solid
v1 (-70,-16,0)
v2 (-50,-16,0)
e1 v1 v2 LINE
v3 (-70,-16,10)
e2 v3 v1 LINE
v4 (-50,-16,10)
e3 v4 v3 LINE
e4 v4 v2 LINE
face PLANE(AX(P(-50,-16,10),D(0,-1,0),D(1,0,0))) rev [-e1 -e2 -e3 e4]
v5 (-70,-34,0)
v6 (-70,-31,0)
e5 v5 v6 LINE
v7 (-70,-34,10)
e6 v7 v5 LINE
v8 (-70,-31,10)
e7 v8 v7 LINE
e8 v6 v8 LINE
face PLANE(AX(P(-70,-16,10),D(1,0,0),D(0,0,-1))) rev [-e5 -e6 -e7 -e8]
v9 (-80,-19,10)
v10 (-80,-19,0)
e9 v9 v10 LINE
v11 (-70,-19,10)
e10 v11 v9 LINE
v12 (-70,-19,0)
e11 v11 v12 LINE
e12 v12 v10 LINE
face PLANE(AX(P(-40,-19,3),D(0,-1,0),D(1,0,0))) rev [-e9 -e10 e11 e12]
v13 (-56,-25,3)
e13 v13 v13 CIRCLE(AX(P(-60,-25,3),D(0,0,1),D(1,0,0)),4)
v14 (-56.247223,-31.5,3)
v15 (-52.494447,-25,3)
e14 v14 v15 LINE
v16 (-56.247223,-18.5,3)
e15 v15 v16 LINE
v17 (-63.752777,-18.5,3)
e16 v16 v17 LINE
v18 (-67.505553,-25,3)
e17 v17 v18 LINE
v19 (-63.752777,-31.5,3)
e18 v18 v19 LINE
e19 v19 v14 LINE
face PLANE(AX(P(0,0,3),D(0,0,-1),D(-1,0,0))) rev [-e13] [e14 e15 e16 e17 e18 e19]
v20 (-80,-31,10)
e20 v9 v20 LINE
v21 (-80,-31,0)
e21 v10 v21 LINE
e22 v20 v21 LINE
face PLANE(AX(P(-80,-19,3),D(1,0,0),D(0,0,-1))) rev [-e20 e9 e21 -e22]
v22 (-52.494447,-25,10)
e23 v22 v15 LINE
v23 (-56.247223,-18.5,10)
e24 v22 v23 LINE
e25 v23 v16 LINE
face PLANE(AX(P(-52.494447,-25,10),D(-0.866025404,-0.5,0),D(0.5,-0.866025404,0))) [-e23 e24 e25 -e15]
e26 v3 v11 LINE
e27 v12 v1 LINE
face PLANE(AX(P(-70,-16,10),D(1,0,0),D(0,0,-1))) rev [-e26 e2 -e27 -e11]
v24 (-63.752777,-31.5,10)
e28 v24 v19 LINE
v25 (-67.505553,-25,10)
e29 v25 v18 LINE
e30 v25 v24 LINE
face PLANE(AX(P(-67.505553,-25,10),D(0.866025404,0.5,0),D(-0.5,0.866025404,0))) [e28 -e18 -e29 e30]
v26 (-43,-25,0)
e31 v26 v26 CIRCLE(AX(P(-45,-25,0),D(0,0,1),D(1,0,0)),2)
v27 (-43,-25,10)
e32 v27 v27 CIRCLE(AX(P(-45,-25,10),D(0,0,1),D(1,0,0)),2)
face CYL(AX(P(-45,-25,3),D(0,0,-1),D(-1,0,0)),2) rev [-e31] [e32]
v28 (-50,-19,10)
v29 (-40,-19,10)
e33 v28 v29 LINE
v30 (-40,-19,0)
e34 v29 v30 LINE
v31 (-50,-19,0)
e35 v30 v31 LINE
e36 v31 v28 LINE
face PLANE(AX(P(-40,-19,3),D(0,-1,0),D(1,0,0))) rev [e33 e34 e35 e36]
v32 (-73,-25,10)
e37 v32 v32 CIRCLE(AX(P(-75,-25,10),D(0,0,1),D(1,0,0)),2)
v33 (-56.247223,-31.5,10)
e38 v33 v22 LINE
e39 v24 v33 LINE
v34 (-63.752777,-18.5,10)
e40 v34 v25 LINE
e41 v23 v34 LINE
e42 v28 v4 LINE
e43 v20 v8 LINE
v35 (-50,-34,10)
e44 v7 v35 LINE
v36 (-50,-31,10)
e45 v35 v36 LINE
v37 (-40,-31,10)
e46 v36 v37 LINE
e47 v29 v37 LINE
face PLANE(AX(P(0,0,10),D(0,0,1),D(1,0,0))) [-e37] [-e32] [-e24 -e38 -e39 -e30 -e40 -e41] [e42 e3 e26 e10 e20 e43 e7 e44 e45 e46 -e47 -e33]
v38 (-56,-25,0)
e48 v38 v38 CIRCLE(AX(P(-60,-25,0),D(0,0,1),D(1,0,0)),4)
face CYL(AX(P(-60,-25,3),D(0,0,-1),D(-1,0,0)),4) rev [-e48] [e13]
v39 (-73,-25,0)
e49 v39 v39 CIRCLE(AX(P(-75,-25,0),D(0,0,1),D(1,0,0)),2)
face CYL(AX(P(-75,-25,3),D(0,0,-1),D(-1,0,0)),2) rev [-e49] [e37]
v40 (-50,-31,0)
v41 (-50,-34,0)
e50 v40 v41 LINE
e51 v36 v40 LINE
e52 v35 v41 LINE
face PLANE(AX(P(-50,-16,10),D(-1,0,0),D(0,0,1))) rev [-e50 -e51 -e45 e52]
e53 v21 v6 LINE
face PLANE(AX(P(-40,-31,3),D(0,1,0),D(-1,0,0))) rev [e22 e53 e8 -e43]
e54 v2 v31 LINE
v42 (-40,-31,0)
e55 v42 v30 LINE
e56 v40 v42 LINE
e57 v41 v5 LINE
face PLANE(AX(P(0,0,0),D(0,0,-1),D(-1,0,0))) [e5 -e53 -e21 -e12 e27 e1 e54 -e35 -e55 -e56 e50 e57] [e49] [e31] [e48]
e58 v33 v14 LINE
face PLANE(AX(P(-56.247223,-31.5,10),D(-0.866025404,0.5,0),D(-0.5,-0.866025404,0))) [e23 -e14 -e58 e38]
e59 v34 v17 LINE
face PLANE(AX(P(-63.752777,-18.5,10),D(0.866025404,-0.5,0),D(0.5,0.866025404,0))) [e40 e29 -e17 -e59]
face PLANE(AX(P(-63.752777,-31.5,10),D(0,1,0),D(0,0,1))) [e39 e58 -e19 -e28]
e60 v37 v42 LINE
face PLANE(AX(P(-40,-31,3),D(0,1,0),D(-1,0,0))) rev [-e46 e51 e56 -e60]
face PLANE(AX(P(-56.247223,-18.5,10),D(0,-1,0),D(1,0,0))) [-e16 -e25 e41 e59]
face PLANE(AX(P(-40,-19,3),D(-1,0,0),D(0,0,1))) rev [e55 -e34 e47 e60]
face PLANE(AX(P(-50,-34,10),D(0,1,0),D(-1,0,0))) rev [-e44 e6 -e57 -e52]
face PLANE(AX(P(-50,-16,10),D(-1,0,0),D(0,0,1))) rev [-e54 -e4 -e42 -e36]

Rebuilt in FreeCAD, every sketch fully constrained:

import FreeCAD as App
import Part
import Sketcher

V = App.Vector
Q = App.Units.Quantity

doc = App.newDocument("Part")
body = doc.addObject("PartDesign::Body", "Body")

sketch1 = body.newObject("Sketcher::SketchObject", "Sketch")
sketch1.AttachmentSupport = (doc.getObject("XY_Plane"), [""])
sketch1.MapMode = "FlatFace"
sketch1.addGeometry(Part.LineSegment(V(-80, -19, 0), V(-80, -31, 0)), False)
sketch1.addGeometry(Part.LineSegment(V(-80, -31, 0), V(-40, -31, 0)), False)
sketch1.addGeometry(Part.LineSegment(V(-40, -31, 0), V(-40, -19, 0)), False)
sketch1.addGeometry(Part.LineSegment(V(-40, -19, 0), V(-80, -19, 0)), False)
sketch1.addGeometry(Part.Circle(V(-75, -25, 0), V(0, 0, 1), 2), False)
sketch1.addGeometry(Part.Circle(V(-60, -25, 0), V(0, 0, 1), 4), False)
sketch1.addGeometry(Part.Circle(V(-45, -25, 0), V(0, 0, 1), 2), False)
sketch1.addConstraint(Sketcher.Constraint("Coincident", 0, 2, 1, 1))
sketch1.addConstraint(Sketcher.Constraint("Coincident", 1, 2, 2, 1))
sketch1.addConstraint(Sketcher.Constraint("Coincident", 2, 2, 3, 1))
sketch1.addConstraint(Sketcher.Constraint("Coincident", 3, 2, 0, 1))
sketch1.addConstraint(Sketcher.Constraint("Vertical", 0))
sketch1.addConstraint(Sketcher.Constraint("Horizontal", 1))
sketch1.addConstraint(Sketcher.Constraint("Vertical", 2))
sketch1.addConstraint(Sketcher.Constraint("Horizontal", 3))
sketch1.addConstraint(Sketcher.Constraint("Equal", 4, 6))
sketch1.addConstraint(Sketcher.Constraint("Horizontal", 4, 3, 5, 3))
sketch1.addConstraint(Sketcher.Constraint("Horizontal", 5, 3, 6, 3))
sketch1.addConstraint(Sketcher.Constraint("Diameter", 4, Q("4 mm")))
sketch1.addConstraint(Sketcher.Constraint("Diameter", 5, Q("8 mm")))
sketch1.addConstraint(Sketcher.Constraint("DistanceX", 1, 1, 1, 2, Q("40 mm")))
sketch1.addConstraint(Sketcher.Constraint("DistanceY", 0, 2, 0, 1, Q("12 mm")))
sketch1.addConstraint(Sketcher.Constraint("DistanceX", 4, 3, -1, 1, Q("75 mm")))
sketch1.addConstraint(Sketcher.Constraint("DistanceY", 4, 3, -1, 1, Q("25 mm")))
sketch1.addConstraint(Sketcher.Constraint("DistanceX", 5, 3, -1, 1, Q("60 mm")))
sketch1.addConstraint(Sketcher.Constraint("DistanceX", 6, 3, -1, 1, Q("45 mm")))
sketch1.addConstraint(Sketcher.Constraint("DistanceX", 0, 2, -1, 1, Q("80 mm")))
sketch1.addConstraint(Sketcher.Constraint("DistanceY", 0, 2, -1, 1, Q("31 mm")))
pad1 = body.newObject("PartDesign::Pad", "Pad")
pad1.Profile = sketch1
pad1.Length = 3

sketch2 = body.newObject("Sketcher::SketchObject", "Sketch001")
sketch2.AttachmentSupport = (doc.getObject("XY_Plane"), [""])
sketch2.MapMode = "FlatFace"
sketch2.AttachmentOffset = App.Placement(V(0, 0, 3), App.Rotation())
sketch2.addGeometry(Part.LineSegment(V(-70, -16, 0), V(-70, -34, 0)), False)
sketch2.addGeometry(Part.LineSegment(V(-70, -34, 0), V(-50, -34, 0)), False)
sketch2.addGeometry(Part.LineSegment(V(-50, -34, 0), V(-50, -16, 0)), False)
sketch2.addGeometry(Part.LineSegment(V(-50, -16, 0), V(-70, -16, 0)), False)
sketch2.addGeometry(Part.LineSegment(V(-63.752777, -18.5, 0), V(-56.247223, -18.5, 0)), False)
sketch2.addGeometry(Part.LineSegment(V(-56.247223, -18.5, 0), V(-52.494447, -25, 0)), False)
sketch2.addGeometry(Part.LineSegment(V(-52.494447, -25, 0), V(-56.247223, -31.5, 0)), False)
sketch2.addGeometry(Part.LineSegment(V(-56.247223, -31.5, 0), V(-63.752777, -31.5, 0)), False)
sketch2.addGeometry(Part.LineSegment(V(-63.752777, -31.5, 0), V(-67.505553, -25, 0)), False)
sketch2.addGeometry(Part.LineSegment(V(-67.505553, -25, 0), V(-63.752777, -18.5, 0)), False)
sketch2.addConstraint(Sketcher.Constraint("Coincident", 0, 2, 1, 1))
sketch2.addConstraint(Sketcher.Constraint("Coincident", 1, 2, 2, 1))
sketch2.addConstraint(Sketcher.Constraint("Coincident", 2, 2, 3, 1))
sketch2.addConstraint(Sketcher.Constraint("Coincident", 3, 2, 0, 1))
sketch2.addConstraint(Sketcher.Constraint("Coincident", 4, 2, 5, 1))
sketch2.addConstraint(Sketcher.Constraint("Coincident", 5, 2, 6, 1))
sketch2.addConstraint(Sketcher.Constraint("Coincident", 6, 2, 7, 1))
sketch2.addConstraint(Sketcher.Constraint("Coincident", 7, 2, 8, 1))
sketch2.addConstraint(Sketcher.Constraint("Coincident", 8, 2, 9, 1))
sketch2.addConstraint(Sketcher.Constraint("Coincident", 9, 2, 4, 1))
sketch2.addConstraint(Sketcher.Constraint("Vertical", 0))
sketch2.addConstraint(Sketcher.Constraint("Horizontal", 1))
sketch2.addConstraint(Sketcher.Constraint("Vertical", 2))
sketch2.addConstraint(Sketcher.Constraint("Horizontal", 3))
sketch2.addConstraint(Sketcher.Constraint("Horizontal", 4))
sketch2.addConstraint(Sketcher.Constraint("Horizontal", 7))
sketch2.addConstraint(Sketcher.Constraint("Parallel", 5, 8))
sketch2.addConstraint(Sketcher.Constraint("Parallel", 6, 9))
sketch2.addConstraint(Sketcher.Constraint("Horizontal", 5, 2, 8, 2))
sketch2.addConstraint(Sketcher.Constraint("Vertical", 4, 2, 6, 2))
sketch2.addConstraint(Sketcher.Constraint("Vertical", 7, 2, 9, 2))
sketch2.addConstraint(Sketcher.Constraint("DistanceX", 1, 1, 1, 2, Q("20 mm")))
sketch2.addConstraint(Sketcher.Constraint("DistanceY", 0, 2, 0, 1, Q("18 mm")))
sketch2.addConstraint(Sketcher.Constraint("Angle", 5, Q("-60 deg")))
sketch2.addConstraint(Sketcher.Constraint("DistanceX", 0, 2, -1, 1, Q("70 mm")))
sketch2.addConstraint(Sketcher.Constraint("DistanceY", 0, 2, -1, 1, Q("34 mm")))
sketch2.addConstraint(Sketcher.Constraint("DistanceY", 5, 2, -1, 1, Q("25 mm")))
sketch2.addConstraint(Sketcher.Constraint("DistanceY", 6, 2, 4, 2, Q("13 mm")))
sketch2.addConstraint(Sketcher.Constraint("DistanceX", 4, 1, 4, 2, Q("7.505554 mm")))
sketch2.addConstraint(Sketcher.Constraint("DistanceX", 4, 2, -1, 1, Q("56.247223 mm")))
pad2 = body.newObject("PartDesign::Pad", "Pad001")
pad2.Profile = sketch2
pad2.Length = 7

sketch3 = body.newObject("Sketcher::SketchObject", "Sketch002")
sketch3.AttachmentSupport = (doc.getObject("XY_Plane"), [""])
sketch3.MapMode = "FlatFace"
sketch3.AttachmentOffset = App.Placement(V(0, 0, 3), App.Rotation())
sketch3.addGeometry(Part.LineSegment(V(-70, -16, 0), V(-70, -34, 0)), False)
sketch3.addGeometry(Part.LineSegment(V(-70, -34, 0), V(-50, -34, 0)), False)
sketch3.addGeometry(Part.LineSegment(V(-50, -34, 0), V(-50, -16, 0)), False)
sketch3.addGeometry(Part.LineSegment(V(-50, -16, 0), V(-70, -16, 0)), False)
sketch3.addGeometry(Part.LineSegment(V(-63.752777, -18.5, 0), V(-56.247223, -18.5, 0)), False)
sketch3.addGeometry(Part.LineSegment(V(-56.247223, -18.5, 0), V(-52.494447, -25, 0)), False)
sketch3.addGeometry(Part.LineSegment(V(-52.494447, -25, 0), V(-56.247223, -31.5, 0)), False)
sketch3.addGeometry(Part.LineSegment(V(-56.247223, -31.5, 0), V(-63.752777, -31.5, 0)), False)
sketch3.addGeometry(Part.LineSegment(V(-63.752777, -31.5, 0), V(-67.505553, -25, 0)), False)
sketch3.addGeometry(Part.LineSegment(V(-67.505553, -25, 0), V(-63.752777, -18.5, 0)), False)
sketch3.addConstraint(Sketcher.Constraint("Coincident", 0, 2, 1, 1))
sketch3.addConstraint(Sketcher.Constraint("Coincident", 1, 2, 2, 1))
sketch3.addConstraint(Sketcher.Constraint("Coincident", 2, 2, 3, 1))
sketch3.addConstraint(Sketcher.Constraint("Coincident", 3, 2, 0, 1))
sketch3.addConstraint(Sketcher.Constraint("Coincident", 4, 2, 5, 1))
sketch3.addConstraint(Sketcher.Constraint("Coincident", 5, 2, 6, 1))
sketch3.addConstraint(Sketcher.Constraint("Coincident", 6, 2, 7, 1))
sketch3.addConstraint(Sketcher.Constraint("Coincident", 7, 2, 8, 1))
sketch3.addConstraint(Sketcher.Constraint("Coincident", 8, 2, 9, 1))
sketch3.addConstraint(Sketcher.Constraint("Coincident", 9, 2, 4, 1))
sketch3.addConstraint(Sketcher.Constraint("Vertical", 0))
sketch3.addConstraint(Sketcher.Constraint("Horizontal", 1))
sketch3.addConstraint(Sketcher.Constraint("Vertical", 2))
sketch3.addConstraint(Sketcher.Constraint("Horizontal", 3))
sketch3.addConstraint(Sketcher.Constraint("Horizontal", 4))
sketch3.addConstraint(Sketcher.Constraint("Horizontal", 7))
sketch3.addConstraint(Sketcher.Constraint("Parallel", 5, 8))
sketch3.addConstraint(Sketcher.Constraint("Parallel", 6, 9))
sketch3.addConstraint(Sketcher.Constraint("Horizontal", 5, 2, 8, 2))
sketch3.addConstraint(Sketcher.Constraint("Vertical", 4, 2, 6, 2))
sketch3.addConstraint(Sketcher.Constraint("Vertical", 7, 2, 9, 2))
sketch3.addConstraint(Sketcher.Constraint("DistanceX", 1, 1, 1, 2, Q("20 mm")))
sketch3.addConstraint(Sketcher.Constraint("DistanceY", 0, 2, 0, 1, Q("18 mm")))
sketch3.addConstraint(Sketcher.Constraint("Angle", 5, Q("-60 deg")))
sketch3.addConstraint(Sketcher.Constraint("DistanceX", 0, 2, -1, 1, Q("70 mm")))
sketch3.addConstraint(Sketcher.Constraint("DistanceY", 0, 2, -1, 1, Q("34 mm")))
sketch3.addConstraint(Sketcher.Constraint("DistanceY", 5, 2, -1, 1, Q("25 mm")))
sketch3.addConstraint(Sketcher.Constraint("DistanceY", 6, 2, 4, 2, Q("13 mm")))
sketch3.addConstraint(Sketcher.Constraint("DistanceX", 4, 1, 4, 2, Q("7.505554 mm")))
sketch3.addConstraint(Sketcher.Constraint("DistanceX", 4, 2, -1, 1, Q("56.247223 mm")))
pad3 = body.newObject("PartDesign::Pad", "Pad002")
pad3.Profile = sketch3
pad3.Length = 3
pad3.Reversed = True

sketch4 = body.newObject("Sketcher::SketchObject", "Sketch003")
sketch4.AttachmentSupport = (doc.getObject("XY_Plane"), [""])
sketch4.MapMode = "FlatFace"
sketch4.AttachmentOffset = App.Placement(V(0, 0, 3), App.Rotation())
sketch4.addGeometry(Part.LineSegment(V(-70, -16, 0), V(-70, -19, 0)), False)
sketch4.addGeometry(Part.LineSegment(V(-70, -19, 0), V(-80, -19, 0)), False)
sketch4.addGeometry(Part.LineSegment(V(-80, -19, 0), V(-80, -31, 0)), False)
sketch4.addGeometry(Part.LineSegment(V(-80, -31, 0), V(-70, -31, 0)), False)
sketch4.addGeometry(Part.LineSegment(V(-70, -31, 0), V(-70, -34, 0)), False)
sketch4.addGeometry(Part.LineSegment(V(-70, -34, 0), V(-50, -34, 0)), False)
sketch4.addGeometry(Part.LineSegment(V(-50, -34, 0), V(-50, -31, 0)), False)
sketch4.addGeometry(Part.LineSegment(V(-50, -31, 0), V(-40, -31, 0)), False)
sketch4.addGeometry(Part.LineSegment(V(-40, -31, 0), V(-40, -19, 0)), False)
sketch4.addGeometry(Part.LineSegment(V(-40, -19, 0), V(-50, -19, 0)), False)
sketch4.addGeometry(Part.LineSegment(V(-50, -19, 0), V(-50, -16, 0)), False)
sketch4.addGeometry(Part.LineSegment(V(-50, -16, 0), V(-70, -16, 0)), False)
sketch4.addGeometry(Part.LineSegment(V(-55.958548, -19, 0), V(-52.494447, -25, 0)), False)
sketch4.addGeometry(Part.LineSegment(V(-52.494447, -25, 0), V(-55.958548, -31, 0)), False)
sketch4.addGeometry(Part.LineSegment(V(-55.958548, -31, 0), V(-56.247223, -31.5, 0)), False)
sketch4.addGeometry(Part.LineSegment(V(-56.247223, -31.5, 0), V(-63.752777, -31.5, 0)), False)
sketch4.addGeometry(Part.LineSegment(V(-63.752777, -31.5, 0), V(-64.041452, -31, 0)), False)
sketch4.addGeometry(Part.LineSegment(V(-64.041452, -31, 0), V(-67.505553, -25, 0)), False)
sketch4.addGeometry(Part.LineSegment(V(-67.505553, -25, 0), V(-64.041452, -19, 0)), False)
sketch4.addGeometry(Part.LineSegment(V(-64.041452, -19, 0), V(-63.752777, -18.5, 0)), False)
sketch4.addGeometry(Part.LineSegment(V(-63.752777, -18.5, 0), V(-56.247223, -18.5, 0)), False)
sketch4.addGeometry(Part.LineSegment(V(-56.247223, -18.5, 0), V(-55.958548, -19, 0)), False)
sketch4.addGeometry(Part.Circle(V(-45, -25, 0), V(0, 0, 1), 2), False)
sketch4.addGeometry(Part.Circle(V(-75, -25, 0), V(0, 0, 1), 2), False)
sketch4.addConstraint(Sketcher.Constraint("Coincident", 0, 2, 1, 1))
sketch4.addConstraint(Sketcher.Constraint("Coincident", 1, 2, 2, 1))
sketch4.addConstraint(Sketcher.Constraint("Coincident", 2, 2, 3, 1))
sketch4.addConstraint(Sketcher.Constraint("Coincident", 3, 2, 4, 1))
sketch4.addConstraint(Sketcher.Constraint("Coincident", 4, 2, 5, 1))
sketch4.addConstraint(Sketcher.Constraint("Coincident", 5, 2, 6, 1))
sketch4.addConstraint(Sketcher.Constraint("Coincident", 6, 2, 7, 1))
sketch4.addConstraint(Sketcher.Constraint("Coincident", 7, 2, 8, 1))
sketch4.addConstraint(Sketcher.Constraint("Coincident", 8, 2, 9, 1))
sketch4.addConstraint(Sketcher.Constraint("Coincident", 9, 2, 10, 1))
sketch4.addConstraint(Sketcher.Constraint("Coincident", 10, 2, 11, 1))
sketch4.addConstraint(Sketcher.Constraint("Coincident", 11, 2, 0, 1))
sketch4.addConstraint(Sketcher.Constraint("Coincident", 12, 2, 13, 1))
sketch4.addConstraint(Sketcher.Constraint("Coincident", 13, 2, 14, 1))
sketch4.addConstraint(Sketcher.Constraint("Coincident", 14, 2, 15, 1))
sketch4.addConstraint(Sketcher.Constraint("Coincident", 15, 2, 16, 1))
sketch4.addConstraint(Sketcher.Constraint("Coincident", 16, 2, 17, 1))
sketch4.addConstraint(Sketcher.Constraint("Coincident", 17, 2, 18, 1))
sketch4.addConstraint(Sketcher.Constraint("Coincident", 18, 2, 19, 1))
sketch4.addConstraint(Sketcher.Constraint("Coincident", 19, 2, 20, 1))
sketch4.addConstraint(Sketcher.Constraint("Coincident", 20, 2, 21, 1))
sketch4.addConstraint(Sketcher.Constraint("Coincident", 21, 2, 12, 1))
sketch4.addConstraint(Sketcher.Constraint("Vertical", 0))
sketch4.addConstraint(Sketcher.Constraint("Horizontal", 1))
sketch4.addConstraint(Sketcher.Constraint("Vertical", 2))
sketch4.addConstraint(Sketcher.Constraint("Horizontal", 3))
sketch4.addConstraint(Sketcher.Constraint("Vertical", 4))
sketch4.addConstraint(Sketcher.Constraint("Horizontal", 5))
sketch4.addConstraint(Sketcher.Constraint("Vertical", 6))
sketch4.addConstraint(Sketcher.Constraint("Horizontal", 7))
sketch4.addConstraint(Sketcher.Constraint("Vertical", 8))
sketch4.addConstraint(Sketcher.Constraint("Horizontal", 9))
sketch4.addConstraint(Sketcher.Constraint("Vertical", 10))
sketch4.addConstraint(Sketcher.Constraint("Horizontal", 11))
sketch4.addConstraint(Sketcher.Constraint("Horizontal", 15))
sketch4.addConstraint(Sketcher.Constraint("Horizontal", 20))
sketch4.addConstraint(Sketcher.Constraint("Equal", 22, 23))
sketch4.addConstraint(Sketcher.Constraint("Parallel", 13, 14))
sketch4.addConstraint(Sketcher.Constraint("Parallel", 12, 16))
sketch4.addConstraint(Sketcher.Constraint("Parallel", 16, 17))
sketch4.addConstraint(Sketcher.Constraint("Parallel", 14, 18))
sketch4.addConstraint(Sketcher.Constraint("Parallel", 18, 19))
sketch4.addConstraint(Sketcher.Constraint("Parallel", 17, 21))
sketch4.addConstraint(Sketcher.Constraint("Horizontal", 22, 3, 23, 3))
sketch4.addConstraint(Sketcher.Constraint("Horizontal", 3, 2, 6, 2))
sketch4.addConstraint(Sketcher.Constraint("Horizontal", 1, 2, 8, 2))
sketch4.addConstraint(Sketcher.Constraint("Horizontal", 23, 3, 12, 2))
sketch4.addConstraint(Sketcher.Constraint("Horizontal", 7, 2, 13, 2))
sketch4.addConstraint(Sketcher.Constraint("Horizontal", 13, 2, 16, 2))
sketch4.addConstraint(Sketcher.Constraint("Horizontal", 12, 2, 17, 2))
sketch4.addConstraint(Sketcher.Constraint("Horizontal", 9, 2, 18, 2))
sketch4.addConstraint(Sketcher.Constraint("Horizontal", 18, 2, 21, 2))
sketch4.addConstraint(Sketcher.Constraint("Vertical", 0, 2, 3, 2))
sketch4.addConstraint(Sketcher.Constraint("Vertical", 6, 2, 9, 2))
sketch4.addConstraint(Sketcher.Constraint("Vertical", 16, 2, 18, 2))
sketch4.addConstraint(Sketcher.Constraint("Vertical", 15, 2, 19, 2))
sketch4.addConstraint(Sketcher.Constraint("Vertical", 14, 2, 20, 2))
sketch4.addConstraint(Sketcher.Constraint("Equal", 3, 7))
sketch4.addConstraint(Sketcher.Constraint("Equal", 0, 4))
sketch4.addConstraint(Sketcher.Constraint("Diameter", 22, Q("4 mm")))
sketch4.addConstraint(Sketcher.Constraint("DistanceX", 1, 2, 1, 1, Q("10 mm")))
sketch4.addConstraint(Sketcher.Constraint("DistanceX", 5, 1, 5, 2, Q("20 mm")))
sketch4.addConstraint(Sketcher.Constraint("DistanceY", 0, 2, 0, 1, Q("3 mm")))
sketch4.addConstraint(Sketcher.Constraint("DistanceY", 2, 2, 2, 1, Q("12 mm")))
sketch4.addConstraint(Sketcher.Constraint("Angle", 12, Q("-60 deg")))
sketch4.addConstraint(Sketcher.Constraint("DistanceX", 22, 3, -1, 1, Q("45 mm")))
sketch4.addConstraint(Sketcher.Constraint("DistanceY", 22, 3, -1, 1, Q("25 mm")))
sketch4.addConstraint(Sketcher.Constraint("DistanceX", 23, 3, -1, 1, Q("75 mm")))
sketch4.addConstraint(Sketcher.Constraint("DistanceX", 0, 2, -1, 1, Q("70 mm")))
sketch4.addConstraint(Sketcher.Constraint("DistanceY", 14, 2, -1, 1, Q("31.5 mm")))
sketch4.addConstraint(Sketcher.Constraint("DistanceX", 15, 2, 15, 1, Q("7.505554 mm")))
sketch4.addConstraint(Sketcher.Constraint("DistanceX", 13, 2, -1, 1, Q("55.958548 mm")))
pad4 = body.newObject("PartDesign::Pad", "Pad003")
pad4.Profile = sketch4
pad4.Length = 7

sketch5 = body.newObject("Sketcher::SketchObject", "Sketch004")
sketch5.AttachmentSupport = (doc.getObject("XY_Plane"), [""])
sketch5.MapMode = "FlatFace"
sketch5.AttachmentOffset = App.Placement(V(0, 0, 3), App.Rotation())
sketch5.addGeometry(Part.LineSegment(V(-63.752777, -18.5, 0), V(-64.041452, -19, 0)), False)
sketch5.addGeometry(Part.LineSegment(V(-64.041452, -19, 0), V(-55.958548, -19, 0)), False)
sketch5.addGeometry(Part.LineSegment(V(-55.958548, -19, 0), V(-56.247223, -18.5, 0)), False)
sketch5.addGeometry(Part.LineSegment(V(-56.247223, -18.5, 0), V(-63.752777, -18.5, 0)), False)
sketch5.addGeometry(Part.LineSegment(V(-55.958548, -31, 0), V(-64.041452, -31, 0)), False)
sketch5.addGeometry(Part.LineSegment(V(-64.041452, -31, 0), V(-63.752777, -31.5, 0)), False)
sketch5.addGeometry(Part.LineSegment(V(-63.752777, -31.5, 0), V(-56.247223, -31.5, 0)), False)
sketch5.addGeometry(Part.LineSegment(V(-56.247223, -31.5, 0), V(-55.958548, -31, 0)), False)
sketch5.addConstraint(Sketcher.Constraint("Coincident", 0, 2, 1, 1))
sketch5.addConstraint(Sketcher.Constraint("Coincident", 1, 2, 2, 1))
sketch5.addConstraint(Sketcher.Constraint("Coincident", 2, 2, 3, 1))
sketch5.addConstraint(Sketcher.Constraint("Coincident", 3, 2, 0, 1))
sketch5.addConstraint(Sketcher.Constraint("Coincident", 4, 2, 5, 1))
sketch5.addConstraint(Sketcher.Constraint("Coincident", 5, 2, 6, 1))
sketch5.addConstraint(Sketcher.Constraint("Coincident", 6, 2, 7, 1))
sketch5.addConstraint(Sketcher.Constraint("Coincident", 7, 2, 4, 1))
sketch5.addConstraint(Sketcher.Constraint("Horizontal", 1))
sketch5.addConstraint(Sketcher.Constraint("Horizontal", 3))
sketch5.addConstraint(Sketcher.Constraint("Horizontal", 4))
sketch5.addConstraint(Sketcher.Constraint("Horizontal", 6))
sketch5.addConstraint(Sketcher.Constraint("Parallel", 2, 5))
sketch5.addConstraint(Sketcher.Constraint("Parallel", 0, 7))
sketch5.addConstraint(Sketcher.Constraint("Vertical", 0, 2, 4, 2))
sketch5.addConstraint(Sketcher.Constraint("Vertical", 3, 2, 5, 2))
sketch5.addConstraint(Sketcher.Constraint("Vertical", 2, 2, 6, 2))
sketch5.addConstraint(Sketcher.Constraint("Vertical", 1, 2, 7, 2))
sketch5.addConstraint(Sketcher.Constraint("Angle", 0, Q("-120 deg")))
sketch5.addConstraint(Sketcher.Constraint("DistanceY", 0, 2, -1, 1, Q("19 mm")))
sketch5.addConstraint(Sketcher.Constraint("DistanceY", 4, 2, -1, 1, Q("31 mm")))
sketch5.addConstraint(Sketcher.Constraint("DistanceY", 5, 2, 3, 2, Q("13 mm")))
sketch5.addConstraint(Sketcher.Constraint("DistanceX", 1, 1, 1, 2, Q("8.082904 mm")))
sketch5.addConstraint(Sketcher.Constraint("DistanceX", 0, 2, -1, 1, Q("64.041452 mm")))
pad5 = body.newObject("PartDesign::Pad", "Pad004")
pad5.Profile = sketch5
pad5.Length = 3
pad5.Reversed = True

doc.recompute()
